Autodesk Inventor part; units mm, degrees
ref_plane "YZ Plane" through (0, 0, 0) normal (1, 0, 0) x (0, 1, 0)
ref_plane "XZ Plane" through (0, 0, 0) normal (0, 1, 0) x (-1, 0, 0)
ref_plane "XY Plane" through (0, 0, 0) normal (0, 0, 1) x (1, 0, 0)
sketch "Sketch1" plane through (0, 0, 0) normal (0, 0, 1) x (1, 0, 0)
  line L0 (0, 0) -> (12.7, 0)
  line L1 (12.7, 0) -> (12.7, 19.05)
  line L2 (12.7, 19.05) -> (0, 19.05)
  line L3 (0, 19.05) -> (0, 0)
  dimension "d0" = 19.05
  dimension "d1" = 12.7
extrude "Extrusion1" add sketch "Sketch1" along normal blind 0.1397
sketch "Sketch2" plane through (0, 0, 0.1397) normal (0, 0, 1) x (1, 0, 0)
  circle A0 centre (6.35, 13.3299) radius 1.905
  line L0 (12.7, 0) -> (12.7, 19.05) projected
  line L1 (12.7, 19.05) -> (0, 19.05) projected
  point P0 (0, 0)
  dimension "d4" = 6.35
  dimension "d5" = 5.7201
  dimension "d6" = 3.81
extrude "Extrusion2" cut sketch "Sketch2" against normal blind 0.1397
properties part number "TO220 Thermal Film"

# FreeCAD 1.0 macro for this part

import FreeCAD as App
import Part
import Sketcher
from FreeCAD import Vector
Q = App.Units.Quantity


def add_polygon(sketch, points):
    """Adds a closed chain of lines whose ends are joined by coincident constraints."""
    first, n = sketch.GeometryCount, len(points)
    for a, b in zip(points, points[1:] + points[:1]):
        sketch.addGeometry(Part.LineSegment(App.Vector(*a, 0), App.Vector(*b, 0)), False)
    for i in range(n):
        sketch.addConstraint(Sketcher.Constraint("Coincident", first + i, 2, first + (i + 1) % n, 1))

doc = App.newDocument("Part")
body = doc.addObject("PartDesign::Body", "Body")

# Sketch on XY plane
sketch1 = body.newObject("Sketcher::SketchObject", "Sketch")
sketch1.AttachmentSupport = (doc.getObject("XY_Plane"), [""])
sketch1.MapMode = "FlatFace"
add_polygon(sketch1, [(0, 19.05), (0, 0), (12.7, 0), (12.7, 19.05)])  # lines 0-3
sketch1.addConstraint([
    Sketcher.Constraint("Vertical", 0),
    Sketcher.Constraint("Horizontal", 1),
    Sketcher.Constraint("Vertical", 2),
    Sketcher.Constraint("Horizontal", 3),
    Sketcher.Constraint("Coincident", 0, 2, -1, 1),
    Sketcher.Constraint("DistanceX", 1, 1, 1, 2, Q("0.5 in")),
    Sketcher.Constraint("DistanceY", 0, 2, 0, 1, Q("0.75 in")),
])
pad1 = body.newObject("PartDesign::Pad", "Pad")
pad1.Profile = sketch1
pad1.Length = Q("0.0055 in")

# Sketch on XY plane
sketch2 = body.newObject("Sketcher::SketchObject", "Sketch001")
sketch2.AttachmentSupport = (doc.getObject("XY_Plane"), [""])
sketch2.MapMode = "FlatFace"
sketch2.AttachmentOffset = App.Placement(Vector(0, 0, 0.0055 * 25.4), App.Rotation())
sketch2.addGeometry(Part.Circle(Vector(6.35, 13.3299, 0), Vector(0, 0, 1), 1.905), False)
sketch2.addConstraint([
    Sketcher.Constraint("Diameter", 0, Q("0.15 in")),
    Sketcher.Constraint("DistanceX", -1, 1, 0, 3, Q("0.25 in")),
    Sketcher.Constraint("DistanceY", -1, 1, 0, 3, Q("0.5248 in")),
])
pocket1 = body.newObject("PartDesign::Pocket", "Pocket")
pocket1.Profile = sketch2
pocket1.Length = Q("0.0055 in")

doc.recompute()
